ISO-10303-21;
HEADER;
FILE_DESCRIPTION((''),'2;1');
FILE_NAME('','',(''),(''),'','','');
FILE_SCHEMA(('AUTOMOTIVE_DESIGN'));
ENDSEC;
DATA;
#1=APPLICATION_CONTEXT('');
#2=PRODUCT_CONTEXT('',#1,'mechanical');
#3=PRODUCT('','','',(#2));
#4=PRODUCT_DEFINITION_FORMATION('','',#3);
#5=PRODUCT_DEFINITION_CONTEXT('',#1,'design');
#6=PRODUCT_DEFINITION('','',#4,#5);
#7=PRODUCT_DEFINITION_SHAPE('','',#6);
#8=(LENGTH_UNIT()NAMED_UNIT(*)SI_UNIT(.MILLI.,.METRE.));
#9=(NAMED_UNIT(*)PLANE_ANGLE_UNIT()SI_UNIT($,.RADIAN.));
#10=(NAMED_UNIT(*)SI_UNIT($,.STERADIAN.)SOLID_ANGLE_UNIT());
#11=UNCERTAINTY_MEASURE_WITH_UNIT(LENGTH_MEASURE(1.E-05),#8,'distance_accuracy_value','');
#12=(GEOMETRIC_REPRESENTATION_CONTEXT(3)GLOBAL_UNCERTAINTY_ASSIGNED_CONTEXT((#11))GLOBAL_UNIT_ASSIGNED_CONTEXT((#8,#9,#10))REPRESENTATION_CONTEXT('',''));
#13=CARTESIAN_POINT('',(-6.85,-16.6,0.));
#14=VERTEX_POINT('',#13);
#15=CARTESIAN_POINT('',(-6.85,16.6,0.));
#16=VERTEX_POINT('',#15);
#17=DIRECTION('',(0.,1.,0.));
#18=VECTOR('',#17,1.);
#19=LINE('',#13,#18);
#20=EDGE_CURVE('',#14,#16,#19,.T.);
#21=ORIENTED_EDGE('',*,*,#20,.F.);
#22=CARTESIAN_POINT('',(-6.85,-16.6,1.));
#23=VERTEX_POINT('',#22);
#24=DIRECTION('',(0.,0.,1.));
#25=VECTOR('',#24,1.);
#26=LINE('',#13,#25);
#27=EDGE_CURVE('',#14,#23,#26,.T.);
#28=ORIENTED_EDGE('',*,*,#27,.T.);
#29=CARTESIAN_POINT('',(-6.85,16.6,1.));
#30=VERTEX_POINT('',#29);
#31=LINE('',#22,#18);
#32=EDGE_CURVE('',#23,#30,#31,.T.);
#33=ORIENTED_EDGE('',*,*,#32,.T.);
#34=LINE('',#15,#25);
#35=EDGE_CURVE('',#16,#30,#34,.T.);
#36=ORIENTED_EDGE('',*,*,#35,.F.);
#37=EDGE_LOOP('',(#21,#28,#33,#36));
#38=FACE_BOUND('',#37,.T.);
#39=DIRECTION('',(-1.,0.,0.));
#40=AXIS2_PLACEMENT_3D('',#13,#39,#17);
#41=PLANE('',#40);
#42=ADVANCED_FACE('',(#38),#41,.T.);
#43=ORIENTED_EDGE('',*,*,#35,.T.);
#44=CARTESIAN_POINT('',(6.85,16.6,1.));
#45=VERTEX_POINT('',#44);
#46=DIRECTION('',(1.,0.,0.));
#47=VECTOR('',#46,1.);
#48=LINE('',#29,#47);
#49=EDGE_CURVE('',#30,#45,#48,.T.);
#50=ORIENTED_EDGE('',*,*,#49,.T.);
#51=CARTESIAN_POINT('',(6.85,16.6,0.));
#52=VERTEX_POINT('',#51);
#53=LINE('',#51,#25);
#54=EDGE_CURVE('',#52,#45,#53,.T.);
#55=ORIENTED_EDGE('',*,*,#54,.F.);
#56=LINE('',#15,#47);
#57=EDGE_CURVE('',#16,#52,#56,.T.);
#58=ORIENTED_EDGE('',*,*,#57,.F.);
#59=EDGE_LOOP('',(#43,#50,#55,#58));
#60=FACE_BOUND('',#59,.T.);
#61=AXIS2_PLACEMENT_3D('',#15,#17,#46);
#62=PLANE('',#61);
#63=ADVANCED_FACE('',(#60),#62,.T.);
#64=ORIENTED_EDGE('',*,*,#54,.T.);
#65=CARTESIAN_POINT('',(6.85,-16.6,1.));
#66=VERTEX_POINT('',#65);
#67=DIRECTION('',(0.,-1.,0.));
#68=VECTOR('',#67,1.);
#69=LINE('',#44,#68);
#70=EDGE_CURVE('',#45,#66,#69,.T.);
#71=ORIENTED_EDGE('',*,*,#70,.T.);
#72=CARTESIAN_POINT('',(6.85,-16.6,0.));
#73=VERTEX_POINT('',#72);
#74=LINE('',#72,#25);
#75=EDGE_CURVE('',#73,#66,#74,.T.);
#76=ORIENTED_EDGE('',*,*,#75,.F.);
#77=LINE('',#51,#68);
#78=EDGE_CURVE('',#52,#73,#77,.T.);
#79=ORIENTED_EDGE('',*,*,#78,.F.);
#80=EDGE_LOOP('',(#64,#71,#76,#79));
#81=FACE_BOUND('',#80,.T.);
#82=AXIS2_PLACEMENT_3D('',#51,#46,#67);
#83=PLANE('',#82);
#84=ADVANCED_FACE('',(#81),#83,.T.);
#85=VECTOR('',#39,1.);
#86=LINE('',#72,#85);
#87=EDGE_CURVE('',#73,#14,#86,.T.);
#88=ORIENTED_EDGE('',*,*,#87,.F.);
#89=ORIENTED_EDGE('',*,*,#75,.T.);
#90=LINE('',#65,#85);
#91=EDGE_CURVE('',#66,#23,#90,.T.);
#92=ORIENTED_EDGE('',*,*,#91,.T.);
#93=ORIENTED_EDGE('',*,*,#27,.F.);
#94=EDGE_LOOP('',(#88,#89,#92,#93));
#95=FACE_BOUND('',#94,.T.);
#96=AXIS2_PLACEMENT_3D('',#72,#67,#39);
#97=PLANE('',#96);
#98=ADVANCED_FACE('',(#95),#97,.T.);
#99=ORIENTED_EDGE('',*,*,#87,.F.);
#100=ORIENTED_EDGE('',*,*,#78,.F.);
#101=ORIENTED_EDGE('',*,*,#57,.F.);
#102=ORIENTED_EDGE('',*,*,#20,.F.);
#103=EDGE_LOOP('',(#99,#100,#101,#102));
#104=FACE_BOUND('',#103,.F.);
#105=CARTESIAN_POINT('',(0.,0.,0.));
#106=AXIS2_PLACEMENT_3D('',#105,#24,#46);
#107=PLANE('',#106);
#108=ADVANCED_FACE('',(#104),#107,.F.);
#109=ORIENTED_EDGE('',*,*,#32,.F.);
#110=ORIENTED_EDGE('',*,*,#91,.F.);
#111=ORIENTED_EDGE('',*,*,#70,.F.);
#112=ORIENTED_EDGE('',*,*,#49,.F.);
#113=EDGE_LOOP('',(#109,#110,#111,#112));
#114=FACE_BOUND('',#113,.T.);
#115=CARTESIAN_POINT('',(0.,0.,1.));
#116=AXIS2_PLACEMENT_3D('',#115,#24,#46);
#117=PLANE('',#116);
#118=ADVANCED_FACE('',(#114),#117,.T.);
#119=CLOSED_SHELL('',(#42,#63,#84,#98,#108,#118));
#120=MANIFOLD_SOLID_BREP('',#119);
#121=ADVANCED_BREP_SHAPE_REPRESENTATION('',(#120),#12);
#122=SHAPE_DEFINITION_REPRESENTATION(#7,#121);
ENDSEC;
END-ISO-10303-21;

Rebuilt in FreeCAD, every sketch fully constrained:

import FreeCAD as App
import Part
import Sketcher
from FreeCAD import Vector

doc = App.newDocument("Part")
body = doc.addObject("PartDesign::Body", "Body")

# Sketch on XY plane
sketch1 = body.newObject("Sketcher::SketchObject", "Sketch")
sketch1.AttachmentSupport = (doc.getObject("XY_Plane"), [""])
sketch1.MapMode = "FlatFace"
sketch1.addGeometry([
    Part.LineSegment(Vector(-6.85, 16.6, 0), Vector(-6.85, -16.6, 0)),
    Part.LineSegment(Vector(-6.85, -16.6, 0), Vector(6.85, -16.6, 0)),
    Part.LineSegment(Vector(6.85, -16.6, 0), Vector(6.85, 16.6, 0)),
    Part.LineSegment(Vector(6.85, 16.6, 0), Vector(-6.85, 16.6, 0)),
], False)
sketch1.addConstraint([
    Sketcher.Constraint("Coincident", 0, 2, 1, 1),
    Sketcher.Constraint("Coincident", 1, 2, 2, 1),
    Sketcher.Constraint("Coincident", 2, 2, 3, 1),
    Sketcher.Constraint("Coincident", 3, 2, 0, 1),
    Sketcher.Constraint("Vertical", 0),
    Sketcher.Constraint("Horizontal", 1),
    Sketcher.Constraint("Vertical", 2),
    Sketcher.Constraint("Horizontal", 3),
    Sketcher.Constraint("Symmetric", 0, 2, 2, 2, -1, 1),
    Sketcher.Constraint("DistanceX", 1, 1, 1, 2, 13.7),
    Sketcher.Constraint("DistanceY", 0, 2, 0, 1, 33.2),
])
pad1 = body.newObject("PartDesign::Pad", "Pad")
pad1.Profile = sketch1
pad1.Length = 1

doc.recompute()
